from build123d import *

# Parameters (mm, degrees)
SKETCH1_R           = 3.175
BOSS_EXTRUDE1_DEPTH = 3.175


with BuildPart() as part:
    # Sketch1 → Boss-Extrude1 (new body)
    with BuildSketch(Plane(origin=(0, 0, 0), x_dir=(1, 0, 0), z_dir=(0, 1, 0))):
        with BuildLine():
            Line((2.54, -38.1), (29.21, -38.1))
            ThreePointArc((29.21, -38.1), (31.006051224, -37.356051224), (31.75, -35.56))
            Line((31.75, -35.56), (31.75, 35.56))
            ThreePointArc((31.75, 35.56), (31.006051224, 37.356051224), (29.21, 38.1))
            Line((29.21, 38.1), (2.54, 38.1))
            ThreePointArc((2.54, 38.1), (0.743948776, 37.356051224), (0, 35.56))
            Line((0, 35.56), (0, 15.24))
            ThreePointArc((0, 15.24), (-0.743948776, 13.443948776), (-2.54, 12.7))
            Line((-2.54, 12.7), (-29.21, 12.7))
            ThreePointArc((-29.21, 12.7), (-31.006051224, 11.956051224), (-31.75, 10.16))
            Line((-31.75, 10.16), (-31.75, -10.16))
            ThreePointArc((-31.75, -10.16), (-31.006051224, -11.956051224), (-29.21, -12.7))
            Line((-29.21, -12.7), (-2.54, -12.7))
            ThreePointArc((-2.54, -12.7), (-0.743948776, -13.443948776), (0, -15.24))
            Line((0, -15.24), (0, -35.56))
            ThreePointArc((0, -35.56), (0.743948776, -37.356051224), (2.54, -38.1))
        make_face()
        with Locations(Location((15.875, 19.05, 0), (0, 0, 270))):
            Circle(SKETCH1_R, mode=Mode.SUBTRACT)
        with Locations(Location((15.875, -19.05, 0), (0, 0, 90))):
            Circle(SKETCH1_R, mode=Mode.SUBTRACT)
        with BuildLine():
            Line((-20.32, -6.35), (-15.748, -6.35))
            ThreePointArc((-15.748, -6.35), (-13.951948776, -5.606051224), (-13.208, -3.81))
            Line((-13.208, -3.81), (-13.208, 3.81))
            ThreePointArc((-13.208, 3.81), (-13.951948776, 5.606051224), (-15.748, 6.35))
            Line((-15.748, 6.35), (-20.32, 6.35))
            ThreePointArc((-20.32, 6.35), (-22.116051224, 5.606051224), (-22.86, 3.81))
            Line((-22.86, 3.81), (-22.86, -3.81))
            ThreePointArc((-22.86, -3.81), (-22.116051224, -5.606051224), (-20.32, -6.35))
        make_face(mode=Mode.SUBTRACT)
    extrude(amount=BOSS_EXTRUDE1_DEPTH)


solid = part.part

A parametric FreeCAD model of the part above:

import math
import FreeCAD as App
import Part
import Sketcher
from FreeCAD import Vector
Q = App.Units.Quantity

doc = App.newDocument("Part")
params = doc.addObject("Spreadsheet::Sheet", "Params")
for row, (alias, value) in enumerate([
    ("sketch1_radius", "0.1 in"),
    ("sketch1_diameter", "0.25 in"),
    ("sketch1_height", "2.8 in"),
    ("sketch1_height2", "0.3 in"),
    ("sketch1_width", "1.05 in"),
    ("pad1_length", "0.125 in"),
], start=1):
    params.set(f"A{row}", alias)
    params.set(f"B{row}", "=" + value)
    params.setAlias(f"B{row}", alias)

body = doc.addObject("PartDesign::Body", "Body")

# Sketch on XZ plane
sketch1 = body.newObject("Sketcher::SketchObject", "Sketch")
sketch1.AttachmentSupport = (doc.getObject("XZ_Plane"), [""])
sketch1.MapMode = "FlatFace"
sketch1.addGeometry(Part.LineSegment(Vector(2.5, 38.1, 0), Vector(29.2, 38.1, 0)), False)
sketch1.addGeometry(Part.ArcOfCircle(Part.Circle(Vector(29.2, 35.6, 0), Vector(0, 0, 1), 2.5), math.radians(0), math.radians(90)), False)
sketch1.addGeometry(Part.LineSegment(Vector(31.8, 35.6, 0), Vector(31.8, -35.6, 0)), False)
sketch1.addGeometry(Part.ArcOfCircle(Part.Circle(Vector(29.2, -35.6, 0), Vector(0, 0, 1), 2.5), math.radians(-90), math.radians(0)), False)
sketch1.addGeometry(Part.LineSegment(Vector(29.2, -38.1, 0), Vector(2.5, -38.1, 0)), False)
sketch1.addGeometry(Part.ArcOfCircle(Part.Circle(Vector(2.5, -35.6, 0), Vector(0, 0, 1), 2.5), math.radians(-180), math.radians(-90)), False)
sketch1.addGeometry(Part.LineSegment(Vector(0, -35.6, 0), Vector(0, -15.2, 0)), False)
sketch1.addGeometry(Part.ArcOfCircle(Part.Circle(Vector(-2.5, -15.2, 0), Vector(0, 0, 1), 2.5), math.radians(0), math.radians(90)), False)
sketch1.addGeometry(Part.LineSegment(Vector(-2.5, -12.7, 0), Vector(-29.2, -12.7, 0)), False)
sketch1.addGeometry(Part.ArcOfCircle(Part.Circle(Vector(-29.2, -10.2, 0), Vector(0, 0, 1), 2.5), math.radians(-180), math.radians(-90)), False)
sketch1.addGeometry(Part.LineSegment(Vector(-31.8, -10.2, 0), Vector(-31.8, 10.2, 0)), False)
sketch1.addGeometry(Part.ArcOfCircle(Part.Circle(Vector(-29.2, 10.2, 0), Vector(0, 0, 1), 2.5), math.radians(90), math.radians(180)), False)
sketch1.addGeometry(Part.LineSegment(Vector(-29.2, 12.7, 0), Vector(-2.5, 12.7, 0)), False)
sketch1.addGeometry(Part.ArcOfCircle(Part.Circle(Vector(-2.5, 15.2, 0), Vector(0, 0, 1), 2.5), math.radians(-90), math.radians(0)), False)
sketch1.addGeometry(Part.LineSegment(Vector(0, 15.2, 0), Vector(0, 35.6, 0)), False)
sketch1.addGeometry(Part.ArcOfCircle(Part.Circle(Vector(2.5, 35.6, 0), Vector(0, 0, 1), 2.5), math.radians(90), math.radians(180)), False)
sketch1.addGeometry(Part.Circle(Vector(15.9, 19.1, 0), Vector(0, 0, 1), 3.2), False)
sketch1.addGeometry(Part.LineSegment(Vector(-15.7, 6.3, 0), Vector(-20.3, 6.3, 0)), False)
sketch1.addGeometry(Part.ArcOfCircle(Part.Circle(Vector(-20.3, 3.8, 0), Vector(0, 0, 1), 2.5), math.radians(90), math.radians(180)), False)
sketch1.addGeometry(Part.LineSegment(Vector(-22.9, 3.8, 0), Vector(-22.9, -3.8, 0)), False)
sketch1.addGeometry(Part.ArcOfCircle(Part.Circle(Vector(-20.3, -3.8, 0), Vector(0, 0, 1), 2.5), math.radians(-180), math.radians(-90)), False)
sketch1.addGeometry(Part.LineSegment(Vector(-20.3, -6.3, 0), Vector(-15.7, -6.3, 0)), False)
sketch1.addGeometry(Part.ArcOfCircle(Part.Circle(Vector(-15.7, -3.8, 0), Vector(0, 0, 1), 2.5), math.radians(-90), math.radians(0)), False)
sketch1.addGeometry(Part.LineSegment(Vector(-13.2, -3.8, 0), Vector(-13.2, 3.8, 0)), False)
sketch1.addGeometry(Part.ArcOfCircle(Part.Circle(Vector(-15.7, 3.8, 0), Vector(0, 0, 1), 2.5), math.radians(0), math.radians(90)), False)
sketch1.addGeometry(Part.Circle(Vector(15.9, -19.1, 0), Vector(0, 0, 1), 3.2), False)
sketch1.addConstraint(Sketcher.Constraint("Tangent", 0, 2, 1, 2))
sketch1.addConstraint(Sketcher.Constraint("Tangent", 1, 1, 2, 1))
sketch1.addConstraint(Sketcher.Constraint("Tangent", 2, 2, 3, 2))
sketch1.addConstraint(Sketcher.Constraint("Tangent", 3, 1, 4, 1))
sketch1.addConstraint(Sketcher.Constraint("Tangent", 4, 2, 5, 2))
sketch1.addConstraint(Sketcher.Constraint("Tangent", 5, 1, 6, 1))
sketch1.addConstraint(Sketcher.Constraint("Tangent", 6, 2, 7, 1))
sketch1.addConstraint(Sketcher.Constraint("Tangent", 7, 2, 8, 1))
sketch1.addConstraint(Sketcher.Constraint("Tangent", 8, 2, 9, 2))
sketch1.addConstraint(Sketcher.Constraint("Tangent", 9, 1, 10, 1))
sketch1.addConstraint(Sketcher.Constraint("Tangent", 10, 2, 11, 2))
sketch1.addConstraint(Sketcher.Constraint("Tangent", 11, 1, 12, 1))
sketch1.addConstraint(Sketcher.Constraint("Tangent", 12, 2, 13, 1))
sketch1.addConstraint(Sketcher.Constraint("Tangent", 13, 2, 14, 1))
sketch1.addConstraint(Sketcher.Constraint("Tangent", 14, 2, 15, 2))
sketch1.addConstraint(Sketcher.Constraint("Tangent", 15, 1, 0, 1))
sketch1.addConstraint(Sketcher.Constraint("Tangent", 17, 2, 18, 1))
sketch1.addConstraint(Sketcher.Constraint("Tangent", 18, 2, 19, 1))
sketch1.addConstraint(Sketcher.Constraint("Tangent", 19, 2, 20, 1))
sketch1.addConstraint(Sketcher.Constraint("Tangent", 20, 2, 21, 1))
sketch1.addConstraint(Sketcher.Constraint("Tangent", 21, 2, 22, 1))
sketch1.addConstraint(Sketcher.Constraint("Tangent", 22, 2, 23, 1))
sketch1.addConstraint(Sketcher.Constraint("Tangent", 23, 2, 24, 1))
sketch1.addConstraint(Sketcher.Constraint("Tangent", 24, 2, 17, 1))
sketch1.addConstraint(Sketcher.Constraint("Horizontal", 0))
sketch1.addConstraint(Sketcher.Constraint("Vertical", 2))
sketch1.addConstraint(Sketcher.Constraint("Horizontal", 4))
sketch1.addConstraint(Sketcher.Constraint("Vertical", 6))
sketch1.addConstraint(Sketcher.Constraint("Horizontal", 8))
sketch1.addConstraint(Sketcher.Constraint("Vertical", 10))
sketch1.addConstraint(Sketcher.Constraint("Horizontal", 12))
sketch1.addConstraint(Sketcher.Constraint("Vertical", 14))
sketch1.addConstraint(Sketcher.Constraint("Horizontal", 17))
sketch1.addConstraint(Sketcher.Constraint("Vertical", 19))
sketch1.addConstraint(Sketcher.Constraint("Horizontal", 21))
sketch1.addConstraint(Sketcher.Constraint("Vertical", 23))
sketch1.addConstraint(Sketcher.Constraint("Equal", 1, 3))
sketch1.addConstraint(Sketcher.Constraint("Equal", 3, 5))
sketch1.addConstraint(Sketcher.Constraint("Equal", 5, 7))
sketch1.addConstraint(Sketcher.Constraint("Equal", 7, 9))
sketch1.addConstraint(Sketcher.Constraint("Equal", 9, 11))
sketch1.addConstraint(Sketcher.Constraint("Equal", 11, 13))
sketch1.addConstraint(Sketcher.Constraint("Equal", 13, 15))
sketch1.addConstraint(Sketcher.Constraint("Equal", 15, 18))
sketch1.addConstraint(Sketcher.Constraint("Equal", 18, 20))
sketch1.addConstraint(Sketcher.Constraint("Equal", 20, 22))
sketch1.addConstraint(Sketcher.Constraint("Equal", 22, 24))
sketch1.addConstraint(Sketcher.Constraint("Equal", 16, 25))
sketch1.addConstraint(Sketcher.Constraint("Symmetric", 6, 2, 13, 2, -1, 1))
sketch1.addConstraint(Sketcher.Constraint("Symmetric", 5, 3, 15, 3, -1))
sketch1.addConstraint(Sketcher.Constraint("Symmetric", 16, 3, 25, 3, -1))
sketch1.addConstraint(Sketcher.Constraint("Equal", 4, 8))
sketch1.addConstraint(Sketcher.Constraint("Equal", 6, 10))
sketch1.addConstraint(Sketcher.Constraint("Radius", 1, Q("0.1 in")))
sketch1.addConstraint(Sketcher.Constraint("Diameter", 16, Q("0.25 in")))
sketch1.addConstraint(Sketcher.Constraint("DistanceY", 2, 2, 2, 1, Q("2.8 in")))
sketch1.addConstraint(Sketcher.Constraint("DistanceY", 19, 2, 19, 1, Q("0.3 in")))
sketch1.addConstraint(Sketcher.Constraint("DistanceX", 0, 1, 0, 2, Q("1.05 in")))
sketch1.addConstraint(Sketcher.Constraint("DistanceX", 17, 2, 17, 1, Q("0.18 in")))
sketch1.addConstraint(Sketcher.Constraint("DistanceX", 18, 3, -1, 1, Q("0.8 in")))
sketch1.addConstraint(Sketcher.Constraint("DistanceY", 25, 3, 22, 3, Q("0.6 in")))
sketch1.addConstraint(Sketcher.Constraint("DistanceY", 25, 3, 16, 3, Q("1.5 in")))
sketch1.addConstraint(Sketcher.Constraint("DistanceX", -1, 1, 16, 3, Q("0.625 in")))
sketch1.setExpression("Constraints[53]", "Params.sketch1_radius")
sketch1.setExpression("Constraints[54]", "Params.sketch1_diameter")
sketch1.setExpression("Constraints[55]", "Params.sketch1_height")
sketch1.setExpression("Constraints[56]", "Params.sketch1_height2")
sketch1.setExpression("Constraints[57]", "Params.sketch1_width")
pad1 = body.newObject("PartDesign::Pad", "Pad")
pad1.Profile = sketch1
pad1.setExpression("Length", "Params.pad1_length")
pad1.Reversed = True

doc.recompute()
